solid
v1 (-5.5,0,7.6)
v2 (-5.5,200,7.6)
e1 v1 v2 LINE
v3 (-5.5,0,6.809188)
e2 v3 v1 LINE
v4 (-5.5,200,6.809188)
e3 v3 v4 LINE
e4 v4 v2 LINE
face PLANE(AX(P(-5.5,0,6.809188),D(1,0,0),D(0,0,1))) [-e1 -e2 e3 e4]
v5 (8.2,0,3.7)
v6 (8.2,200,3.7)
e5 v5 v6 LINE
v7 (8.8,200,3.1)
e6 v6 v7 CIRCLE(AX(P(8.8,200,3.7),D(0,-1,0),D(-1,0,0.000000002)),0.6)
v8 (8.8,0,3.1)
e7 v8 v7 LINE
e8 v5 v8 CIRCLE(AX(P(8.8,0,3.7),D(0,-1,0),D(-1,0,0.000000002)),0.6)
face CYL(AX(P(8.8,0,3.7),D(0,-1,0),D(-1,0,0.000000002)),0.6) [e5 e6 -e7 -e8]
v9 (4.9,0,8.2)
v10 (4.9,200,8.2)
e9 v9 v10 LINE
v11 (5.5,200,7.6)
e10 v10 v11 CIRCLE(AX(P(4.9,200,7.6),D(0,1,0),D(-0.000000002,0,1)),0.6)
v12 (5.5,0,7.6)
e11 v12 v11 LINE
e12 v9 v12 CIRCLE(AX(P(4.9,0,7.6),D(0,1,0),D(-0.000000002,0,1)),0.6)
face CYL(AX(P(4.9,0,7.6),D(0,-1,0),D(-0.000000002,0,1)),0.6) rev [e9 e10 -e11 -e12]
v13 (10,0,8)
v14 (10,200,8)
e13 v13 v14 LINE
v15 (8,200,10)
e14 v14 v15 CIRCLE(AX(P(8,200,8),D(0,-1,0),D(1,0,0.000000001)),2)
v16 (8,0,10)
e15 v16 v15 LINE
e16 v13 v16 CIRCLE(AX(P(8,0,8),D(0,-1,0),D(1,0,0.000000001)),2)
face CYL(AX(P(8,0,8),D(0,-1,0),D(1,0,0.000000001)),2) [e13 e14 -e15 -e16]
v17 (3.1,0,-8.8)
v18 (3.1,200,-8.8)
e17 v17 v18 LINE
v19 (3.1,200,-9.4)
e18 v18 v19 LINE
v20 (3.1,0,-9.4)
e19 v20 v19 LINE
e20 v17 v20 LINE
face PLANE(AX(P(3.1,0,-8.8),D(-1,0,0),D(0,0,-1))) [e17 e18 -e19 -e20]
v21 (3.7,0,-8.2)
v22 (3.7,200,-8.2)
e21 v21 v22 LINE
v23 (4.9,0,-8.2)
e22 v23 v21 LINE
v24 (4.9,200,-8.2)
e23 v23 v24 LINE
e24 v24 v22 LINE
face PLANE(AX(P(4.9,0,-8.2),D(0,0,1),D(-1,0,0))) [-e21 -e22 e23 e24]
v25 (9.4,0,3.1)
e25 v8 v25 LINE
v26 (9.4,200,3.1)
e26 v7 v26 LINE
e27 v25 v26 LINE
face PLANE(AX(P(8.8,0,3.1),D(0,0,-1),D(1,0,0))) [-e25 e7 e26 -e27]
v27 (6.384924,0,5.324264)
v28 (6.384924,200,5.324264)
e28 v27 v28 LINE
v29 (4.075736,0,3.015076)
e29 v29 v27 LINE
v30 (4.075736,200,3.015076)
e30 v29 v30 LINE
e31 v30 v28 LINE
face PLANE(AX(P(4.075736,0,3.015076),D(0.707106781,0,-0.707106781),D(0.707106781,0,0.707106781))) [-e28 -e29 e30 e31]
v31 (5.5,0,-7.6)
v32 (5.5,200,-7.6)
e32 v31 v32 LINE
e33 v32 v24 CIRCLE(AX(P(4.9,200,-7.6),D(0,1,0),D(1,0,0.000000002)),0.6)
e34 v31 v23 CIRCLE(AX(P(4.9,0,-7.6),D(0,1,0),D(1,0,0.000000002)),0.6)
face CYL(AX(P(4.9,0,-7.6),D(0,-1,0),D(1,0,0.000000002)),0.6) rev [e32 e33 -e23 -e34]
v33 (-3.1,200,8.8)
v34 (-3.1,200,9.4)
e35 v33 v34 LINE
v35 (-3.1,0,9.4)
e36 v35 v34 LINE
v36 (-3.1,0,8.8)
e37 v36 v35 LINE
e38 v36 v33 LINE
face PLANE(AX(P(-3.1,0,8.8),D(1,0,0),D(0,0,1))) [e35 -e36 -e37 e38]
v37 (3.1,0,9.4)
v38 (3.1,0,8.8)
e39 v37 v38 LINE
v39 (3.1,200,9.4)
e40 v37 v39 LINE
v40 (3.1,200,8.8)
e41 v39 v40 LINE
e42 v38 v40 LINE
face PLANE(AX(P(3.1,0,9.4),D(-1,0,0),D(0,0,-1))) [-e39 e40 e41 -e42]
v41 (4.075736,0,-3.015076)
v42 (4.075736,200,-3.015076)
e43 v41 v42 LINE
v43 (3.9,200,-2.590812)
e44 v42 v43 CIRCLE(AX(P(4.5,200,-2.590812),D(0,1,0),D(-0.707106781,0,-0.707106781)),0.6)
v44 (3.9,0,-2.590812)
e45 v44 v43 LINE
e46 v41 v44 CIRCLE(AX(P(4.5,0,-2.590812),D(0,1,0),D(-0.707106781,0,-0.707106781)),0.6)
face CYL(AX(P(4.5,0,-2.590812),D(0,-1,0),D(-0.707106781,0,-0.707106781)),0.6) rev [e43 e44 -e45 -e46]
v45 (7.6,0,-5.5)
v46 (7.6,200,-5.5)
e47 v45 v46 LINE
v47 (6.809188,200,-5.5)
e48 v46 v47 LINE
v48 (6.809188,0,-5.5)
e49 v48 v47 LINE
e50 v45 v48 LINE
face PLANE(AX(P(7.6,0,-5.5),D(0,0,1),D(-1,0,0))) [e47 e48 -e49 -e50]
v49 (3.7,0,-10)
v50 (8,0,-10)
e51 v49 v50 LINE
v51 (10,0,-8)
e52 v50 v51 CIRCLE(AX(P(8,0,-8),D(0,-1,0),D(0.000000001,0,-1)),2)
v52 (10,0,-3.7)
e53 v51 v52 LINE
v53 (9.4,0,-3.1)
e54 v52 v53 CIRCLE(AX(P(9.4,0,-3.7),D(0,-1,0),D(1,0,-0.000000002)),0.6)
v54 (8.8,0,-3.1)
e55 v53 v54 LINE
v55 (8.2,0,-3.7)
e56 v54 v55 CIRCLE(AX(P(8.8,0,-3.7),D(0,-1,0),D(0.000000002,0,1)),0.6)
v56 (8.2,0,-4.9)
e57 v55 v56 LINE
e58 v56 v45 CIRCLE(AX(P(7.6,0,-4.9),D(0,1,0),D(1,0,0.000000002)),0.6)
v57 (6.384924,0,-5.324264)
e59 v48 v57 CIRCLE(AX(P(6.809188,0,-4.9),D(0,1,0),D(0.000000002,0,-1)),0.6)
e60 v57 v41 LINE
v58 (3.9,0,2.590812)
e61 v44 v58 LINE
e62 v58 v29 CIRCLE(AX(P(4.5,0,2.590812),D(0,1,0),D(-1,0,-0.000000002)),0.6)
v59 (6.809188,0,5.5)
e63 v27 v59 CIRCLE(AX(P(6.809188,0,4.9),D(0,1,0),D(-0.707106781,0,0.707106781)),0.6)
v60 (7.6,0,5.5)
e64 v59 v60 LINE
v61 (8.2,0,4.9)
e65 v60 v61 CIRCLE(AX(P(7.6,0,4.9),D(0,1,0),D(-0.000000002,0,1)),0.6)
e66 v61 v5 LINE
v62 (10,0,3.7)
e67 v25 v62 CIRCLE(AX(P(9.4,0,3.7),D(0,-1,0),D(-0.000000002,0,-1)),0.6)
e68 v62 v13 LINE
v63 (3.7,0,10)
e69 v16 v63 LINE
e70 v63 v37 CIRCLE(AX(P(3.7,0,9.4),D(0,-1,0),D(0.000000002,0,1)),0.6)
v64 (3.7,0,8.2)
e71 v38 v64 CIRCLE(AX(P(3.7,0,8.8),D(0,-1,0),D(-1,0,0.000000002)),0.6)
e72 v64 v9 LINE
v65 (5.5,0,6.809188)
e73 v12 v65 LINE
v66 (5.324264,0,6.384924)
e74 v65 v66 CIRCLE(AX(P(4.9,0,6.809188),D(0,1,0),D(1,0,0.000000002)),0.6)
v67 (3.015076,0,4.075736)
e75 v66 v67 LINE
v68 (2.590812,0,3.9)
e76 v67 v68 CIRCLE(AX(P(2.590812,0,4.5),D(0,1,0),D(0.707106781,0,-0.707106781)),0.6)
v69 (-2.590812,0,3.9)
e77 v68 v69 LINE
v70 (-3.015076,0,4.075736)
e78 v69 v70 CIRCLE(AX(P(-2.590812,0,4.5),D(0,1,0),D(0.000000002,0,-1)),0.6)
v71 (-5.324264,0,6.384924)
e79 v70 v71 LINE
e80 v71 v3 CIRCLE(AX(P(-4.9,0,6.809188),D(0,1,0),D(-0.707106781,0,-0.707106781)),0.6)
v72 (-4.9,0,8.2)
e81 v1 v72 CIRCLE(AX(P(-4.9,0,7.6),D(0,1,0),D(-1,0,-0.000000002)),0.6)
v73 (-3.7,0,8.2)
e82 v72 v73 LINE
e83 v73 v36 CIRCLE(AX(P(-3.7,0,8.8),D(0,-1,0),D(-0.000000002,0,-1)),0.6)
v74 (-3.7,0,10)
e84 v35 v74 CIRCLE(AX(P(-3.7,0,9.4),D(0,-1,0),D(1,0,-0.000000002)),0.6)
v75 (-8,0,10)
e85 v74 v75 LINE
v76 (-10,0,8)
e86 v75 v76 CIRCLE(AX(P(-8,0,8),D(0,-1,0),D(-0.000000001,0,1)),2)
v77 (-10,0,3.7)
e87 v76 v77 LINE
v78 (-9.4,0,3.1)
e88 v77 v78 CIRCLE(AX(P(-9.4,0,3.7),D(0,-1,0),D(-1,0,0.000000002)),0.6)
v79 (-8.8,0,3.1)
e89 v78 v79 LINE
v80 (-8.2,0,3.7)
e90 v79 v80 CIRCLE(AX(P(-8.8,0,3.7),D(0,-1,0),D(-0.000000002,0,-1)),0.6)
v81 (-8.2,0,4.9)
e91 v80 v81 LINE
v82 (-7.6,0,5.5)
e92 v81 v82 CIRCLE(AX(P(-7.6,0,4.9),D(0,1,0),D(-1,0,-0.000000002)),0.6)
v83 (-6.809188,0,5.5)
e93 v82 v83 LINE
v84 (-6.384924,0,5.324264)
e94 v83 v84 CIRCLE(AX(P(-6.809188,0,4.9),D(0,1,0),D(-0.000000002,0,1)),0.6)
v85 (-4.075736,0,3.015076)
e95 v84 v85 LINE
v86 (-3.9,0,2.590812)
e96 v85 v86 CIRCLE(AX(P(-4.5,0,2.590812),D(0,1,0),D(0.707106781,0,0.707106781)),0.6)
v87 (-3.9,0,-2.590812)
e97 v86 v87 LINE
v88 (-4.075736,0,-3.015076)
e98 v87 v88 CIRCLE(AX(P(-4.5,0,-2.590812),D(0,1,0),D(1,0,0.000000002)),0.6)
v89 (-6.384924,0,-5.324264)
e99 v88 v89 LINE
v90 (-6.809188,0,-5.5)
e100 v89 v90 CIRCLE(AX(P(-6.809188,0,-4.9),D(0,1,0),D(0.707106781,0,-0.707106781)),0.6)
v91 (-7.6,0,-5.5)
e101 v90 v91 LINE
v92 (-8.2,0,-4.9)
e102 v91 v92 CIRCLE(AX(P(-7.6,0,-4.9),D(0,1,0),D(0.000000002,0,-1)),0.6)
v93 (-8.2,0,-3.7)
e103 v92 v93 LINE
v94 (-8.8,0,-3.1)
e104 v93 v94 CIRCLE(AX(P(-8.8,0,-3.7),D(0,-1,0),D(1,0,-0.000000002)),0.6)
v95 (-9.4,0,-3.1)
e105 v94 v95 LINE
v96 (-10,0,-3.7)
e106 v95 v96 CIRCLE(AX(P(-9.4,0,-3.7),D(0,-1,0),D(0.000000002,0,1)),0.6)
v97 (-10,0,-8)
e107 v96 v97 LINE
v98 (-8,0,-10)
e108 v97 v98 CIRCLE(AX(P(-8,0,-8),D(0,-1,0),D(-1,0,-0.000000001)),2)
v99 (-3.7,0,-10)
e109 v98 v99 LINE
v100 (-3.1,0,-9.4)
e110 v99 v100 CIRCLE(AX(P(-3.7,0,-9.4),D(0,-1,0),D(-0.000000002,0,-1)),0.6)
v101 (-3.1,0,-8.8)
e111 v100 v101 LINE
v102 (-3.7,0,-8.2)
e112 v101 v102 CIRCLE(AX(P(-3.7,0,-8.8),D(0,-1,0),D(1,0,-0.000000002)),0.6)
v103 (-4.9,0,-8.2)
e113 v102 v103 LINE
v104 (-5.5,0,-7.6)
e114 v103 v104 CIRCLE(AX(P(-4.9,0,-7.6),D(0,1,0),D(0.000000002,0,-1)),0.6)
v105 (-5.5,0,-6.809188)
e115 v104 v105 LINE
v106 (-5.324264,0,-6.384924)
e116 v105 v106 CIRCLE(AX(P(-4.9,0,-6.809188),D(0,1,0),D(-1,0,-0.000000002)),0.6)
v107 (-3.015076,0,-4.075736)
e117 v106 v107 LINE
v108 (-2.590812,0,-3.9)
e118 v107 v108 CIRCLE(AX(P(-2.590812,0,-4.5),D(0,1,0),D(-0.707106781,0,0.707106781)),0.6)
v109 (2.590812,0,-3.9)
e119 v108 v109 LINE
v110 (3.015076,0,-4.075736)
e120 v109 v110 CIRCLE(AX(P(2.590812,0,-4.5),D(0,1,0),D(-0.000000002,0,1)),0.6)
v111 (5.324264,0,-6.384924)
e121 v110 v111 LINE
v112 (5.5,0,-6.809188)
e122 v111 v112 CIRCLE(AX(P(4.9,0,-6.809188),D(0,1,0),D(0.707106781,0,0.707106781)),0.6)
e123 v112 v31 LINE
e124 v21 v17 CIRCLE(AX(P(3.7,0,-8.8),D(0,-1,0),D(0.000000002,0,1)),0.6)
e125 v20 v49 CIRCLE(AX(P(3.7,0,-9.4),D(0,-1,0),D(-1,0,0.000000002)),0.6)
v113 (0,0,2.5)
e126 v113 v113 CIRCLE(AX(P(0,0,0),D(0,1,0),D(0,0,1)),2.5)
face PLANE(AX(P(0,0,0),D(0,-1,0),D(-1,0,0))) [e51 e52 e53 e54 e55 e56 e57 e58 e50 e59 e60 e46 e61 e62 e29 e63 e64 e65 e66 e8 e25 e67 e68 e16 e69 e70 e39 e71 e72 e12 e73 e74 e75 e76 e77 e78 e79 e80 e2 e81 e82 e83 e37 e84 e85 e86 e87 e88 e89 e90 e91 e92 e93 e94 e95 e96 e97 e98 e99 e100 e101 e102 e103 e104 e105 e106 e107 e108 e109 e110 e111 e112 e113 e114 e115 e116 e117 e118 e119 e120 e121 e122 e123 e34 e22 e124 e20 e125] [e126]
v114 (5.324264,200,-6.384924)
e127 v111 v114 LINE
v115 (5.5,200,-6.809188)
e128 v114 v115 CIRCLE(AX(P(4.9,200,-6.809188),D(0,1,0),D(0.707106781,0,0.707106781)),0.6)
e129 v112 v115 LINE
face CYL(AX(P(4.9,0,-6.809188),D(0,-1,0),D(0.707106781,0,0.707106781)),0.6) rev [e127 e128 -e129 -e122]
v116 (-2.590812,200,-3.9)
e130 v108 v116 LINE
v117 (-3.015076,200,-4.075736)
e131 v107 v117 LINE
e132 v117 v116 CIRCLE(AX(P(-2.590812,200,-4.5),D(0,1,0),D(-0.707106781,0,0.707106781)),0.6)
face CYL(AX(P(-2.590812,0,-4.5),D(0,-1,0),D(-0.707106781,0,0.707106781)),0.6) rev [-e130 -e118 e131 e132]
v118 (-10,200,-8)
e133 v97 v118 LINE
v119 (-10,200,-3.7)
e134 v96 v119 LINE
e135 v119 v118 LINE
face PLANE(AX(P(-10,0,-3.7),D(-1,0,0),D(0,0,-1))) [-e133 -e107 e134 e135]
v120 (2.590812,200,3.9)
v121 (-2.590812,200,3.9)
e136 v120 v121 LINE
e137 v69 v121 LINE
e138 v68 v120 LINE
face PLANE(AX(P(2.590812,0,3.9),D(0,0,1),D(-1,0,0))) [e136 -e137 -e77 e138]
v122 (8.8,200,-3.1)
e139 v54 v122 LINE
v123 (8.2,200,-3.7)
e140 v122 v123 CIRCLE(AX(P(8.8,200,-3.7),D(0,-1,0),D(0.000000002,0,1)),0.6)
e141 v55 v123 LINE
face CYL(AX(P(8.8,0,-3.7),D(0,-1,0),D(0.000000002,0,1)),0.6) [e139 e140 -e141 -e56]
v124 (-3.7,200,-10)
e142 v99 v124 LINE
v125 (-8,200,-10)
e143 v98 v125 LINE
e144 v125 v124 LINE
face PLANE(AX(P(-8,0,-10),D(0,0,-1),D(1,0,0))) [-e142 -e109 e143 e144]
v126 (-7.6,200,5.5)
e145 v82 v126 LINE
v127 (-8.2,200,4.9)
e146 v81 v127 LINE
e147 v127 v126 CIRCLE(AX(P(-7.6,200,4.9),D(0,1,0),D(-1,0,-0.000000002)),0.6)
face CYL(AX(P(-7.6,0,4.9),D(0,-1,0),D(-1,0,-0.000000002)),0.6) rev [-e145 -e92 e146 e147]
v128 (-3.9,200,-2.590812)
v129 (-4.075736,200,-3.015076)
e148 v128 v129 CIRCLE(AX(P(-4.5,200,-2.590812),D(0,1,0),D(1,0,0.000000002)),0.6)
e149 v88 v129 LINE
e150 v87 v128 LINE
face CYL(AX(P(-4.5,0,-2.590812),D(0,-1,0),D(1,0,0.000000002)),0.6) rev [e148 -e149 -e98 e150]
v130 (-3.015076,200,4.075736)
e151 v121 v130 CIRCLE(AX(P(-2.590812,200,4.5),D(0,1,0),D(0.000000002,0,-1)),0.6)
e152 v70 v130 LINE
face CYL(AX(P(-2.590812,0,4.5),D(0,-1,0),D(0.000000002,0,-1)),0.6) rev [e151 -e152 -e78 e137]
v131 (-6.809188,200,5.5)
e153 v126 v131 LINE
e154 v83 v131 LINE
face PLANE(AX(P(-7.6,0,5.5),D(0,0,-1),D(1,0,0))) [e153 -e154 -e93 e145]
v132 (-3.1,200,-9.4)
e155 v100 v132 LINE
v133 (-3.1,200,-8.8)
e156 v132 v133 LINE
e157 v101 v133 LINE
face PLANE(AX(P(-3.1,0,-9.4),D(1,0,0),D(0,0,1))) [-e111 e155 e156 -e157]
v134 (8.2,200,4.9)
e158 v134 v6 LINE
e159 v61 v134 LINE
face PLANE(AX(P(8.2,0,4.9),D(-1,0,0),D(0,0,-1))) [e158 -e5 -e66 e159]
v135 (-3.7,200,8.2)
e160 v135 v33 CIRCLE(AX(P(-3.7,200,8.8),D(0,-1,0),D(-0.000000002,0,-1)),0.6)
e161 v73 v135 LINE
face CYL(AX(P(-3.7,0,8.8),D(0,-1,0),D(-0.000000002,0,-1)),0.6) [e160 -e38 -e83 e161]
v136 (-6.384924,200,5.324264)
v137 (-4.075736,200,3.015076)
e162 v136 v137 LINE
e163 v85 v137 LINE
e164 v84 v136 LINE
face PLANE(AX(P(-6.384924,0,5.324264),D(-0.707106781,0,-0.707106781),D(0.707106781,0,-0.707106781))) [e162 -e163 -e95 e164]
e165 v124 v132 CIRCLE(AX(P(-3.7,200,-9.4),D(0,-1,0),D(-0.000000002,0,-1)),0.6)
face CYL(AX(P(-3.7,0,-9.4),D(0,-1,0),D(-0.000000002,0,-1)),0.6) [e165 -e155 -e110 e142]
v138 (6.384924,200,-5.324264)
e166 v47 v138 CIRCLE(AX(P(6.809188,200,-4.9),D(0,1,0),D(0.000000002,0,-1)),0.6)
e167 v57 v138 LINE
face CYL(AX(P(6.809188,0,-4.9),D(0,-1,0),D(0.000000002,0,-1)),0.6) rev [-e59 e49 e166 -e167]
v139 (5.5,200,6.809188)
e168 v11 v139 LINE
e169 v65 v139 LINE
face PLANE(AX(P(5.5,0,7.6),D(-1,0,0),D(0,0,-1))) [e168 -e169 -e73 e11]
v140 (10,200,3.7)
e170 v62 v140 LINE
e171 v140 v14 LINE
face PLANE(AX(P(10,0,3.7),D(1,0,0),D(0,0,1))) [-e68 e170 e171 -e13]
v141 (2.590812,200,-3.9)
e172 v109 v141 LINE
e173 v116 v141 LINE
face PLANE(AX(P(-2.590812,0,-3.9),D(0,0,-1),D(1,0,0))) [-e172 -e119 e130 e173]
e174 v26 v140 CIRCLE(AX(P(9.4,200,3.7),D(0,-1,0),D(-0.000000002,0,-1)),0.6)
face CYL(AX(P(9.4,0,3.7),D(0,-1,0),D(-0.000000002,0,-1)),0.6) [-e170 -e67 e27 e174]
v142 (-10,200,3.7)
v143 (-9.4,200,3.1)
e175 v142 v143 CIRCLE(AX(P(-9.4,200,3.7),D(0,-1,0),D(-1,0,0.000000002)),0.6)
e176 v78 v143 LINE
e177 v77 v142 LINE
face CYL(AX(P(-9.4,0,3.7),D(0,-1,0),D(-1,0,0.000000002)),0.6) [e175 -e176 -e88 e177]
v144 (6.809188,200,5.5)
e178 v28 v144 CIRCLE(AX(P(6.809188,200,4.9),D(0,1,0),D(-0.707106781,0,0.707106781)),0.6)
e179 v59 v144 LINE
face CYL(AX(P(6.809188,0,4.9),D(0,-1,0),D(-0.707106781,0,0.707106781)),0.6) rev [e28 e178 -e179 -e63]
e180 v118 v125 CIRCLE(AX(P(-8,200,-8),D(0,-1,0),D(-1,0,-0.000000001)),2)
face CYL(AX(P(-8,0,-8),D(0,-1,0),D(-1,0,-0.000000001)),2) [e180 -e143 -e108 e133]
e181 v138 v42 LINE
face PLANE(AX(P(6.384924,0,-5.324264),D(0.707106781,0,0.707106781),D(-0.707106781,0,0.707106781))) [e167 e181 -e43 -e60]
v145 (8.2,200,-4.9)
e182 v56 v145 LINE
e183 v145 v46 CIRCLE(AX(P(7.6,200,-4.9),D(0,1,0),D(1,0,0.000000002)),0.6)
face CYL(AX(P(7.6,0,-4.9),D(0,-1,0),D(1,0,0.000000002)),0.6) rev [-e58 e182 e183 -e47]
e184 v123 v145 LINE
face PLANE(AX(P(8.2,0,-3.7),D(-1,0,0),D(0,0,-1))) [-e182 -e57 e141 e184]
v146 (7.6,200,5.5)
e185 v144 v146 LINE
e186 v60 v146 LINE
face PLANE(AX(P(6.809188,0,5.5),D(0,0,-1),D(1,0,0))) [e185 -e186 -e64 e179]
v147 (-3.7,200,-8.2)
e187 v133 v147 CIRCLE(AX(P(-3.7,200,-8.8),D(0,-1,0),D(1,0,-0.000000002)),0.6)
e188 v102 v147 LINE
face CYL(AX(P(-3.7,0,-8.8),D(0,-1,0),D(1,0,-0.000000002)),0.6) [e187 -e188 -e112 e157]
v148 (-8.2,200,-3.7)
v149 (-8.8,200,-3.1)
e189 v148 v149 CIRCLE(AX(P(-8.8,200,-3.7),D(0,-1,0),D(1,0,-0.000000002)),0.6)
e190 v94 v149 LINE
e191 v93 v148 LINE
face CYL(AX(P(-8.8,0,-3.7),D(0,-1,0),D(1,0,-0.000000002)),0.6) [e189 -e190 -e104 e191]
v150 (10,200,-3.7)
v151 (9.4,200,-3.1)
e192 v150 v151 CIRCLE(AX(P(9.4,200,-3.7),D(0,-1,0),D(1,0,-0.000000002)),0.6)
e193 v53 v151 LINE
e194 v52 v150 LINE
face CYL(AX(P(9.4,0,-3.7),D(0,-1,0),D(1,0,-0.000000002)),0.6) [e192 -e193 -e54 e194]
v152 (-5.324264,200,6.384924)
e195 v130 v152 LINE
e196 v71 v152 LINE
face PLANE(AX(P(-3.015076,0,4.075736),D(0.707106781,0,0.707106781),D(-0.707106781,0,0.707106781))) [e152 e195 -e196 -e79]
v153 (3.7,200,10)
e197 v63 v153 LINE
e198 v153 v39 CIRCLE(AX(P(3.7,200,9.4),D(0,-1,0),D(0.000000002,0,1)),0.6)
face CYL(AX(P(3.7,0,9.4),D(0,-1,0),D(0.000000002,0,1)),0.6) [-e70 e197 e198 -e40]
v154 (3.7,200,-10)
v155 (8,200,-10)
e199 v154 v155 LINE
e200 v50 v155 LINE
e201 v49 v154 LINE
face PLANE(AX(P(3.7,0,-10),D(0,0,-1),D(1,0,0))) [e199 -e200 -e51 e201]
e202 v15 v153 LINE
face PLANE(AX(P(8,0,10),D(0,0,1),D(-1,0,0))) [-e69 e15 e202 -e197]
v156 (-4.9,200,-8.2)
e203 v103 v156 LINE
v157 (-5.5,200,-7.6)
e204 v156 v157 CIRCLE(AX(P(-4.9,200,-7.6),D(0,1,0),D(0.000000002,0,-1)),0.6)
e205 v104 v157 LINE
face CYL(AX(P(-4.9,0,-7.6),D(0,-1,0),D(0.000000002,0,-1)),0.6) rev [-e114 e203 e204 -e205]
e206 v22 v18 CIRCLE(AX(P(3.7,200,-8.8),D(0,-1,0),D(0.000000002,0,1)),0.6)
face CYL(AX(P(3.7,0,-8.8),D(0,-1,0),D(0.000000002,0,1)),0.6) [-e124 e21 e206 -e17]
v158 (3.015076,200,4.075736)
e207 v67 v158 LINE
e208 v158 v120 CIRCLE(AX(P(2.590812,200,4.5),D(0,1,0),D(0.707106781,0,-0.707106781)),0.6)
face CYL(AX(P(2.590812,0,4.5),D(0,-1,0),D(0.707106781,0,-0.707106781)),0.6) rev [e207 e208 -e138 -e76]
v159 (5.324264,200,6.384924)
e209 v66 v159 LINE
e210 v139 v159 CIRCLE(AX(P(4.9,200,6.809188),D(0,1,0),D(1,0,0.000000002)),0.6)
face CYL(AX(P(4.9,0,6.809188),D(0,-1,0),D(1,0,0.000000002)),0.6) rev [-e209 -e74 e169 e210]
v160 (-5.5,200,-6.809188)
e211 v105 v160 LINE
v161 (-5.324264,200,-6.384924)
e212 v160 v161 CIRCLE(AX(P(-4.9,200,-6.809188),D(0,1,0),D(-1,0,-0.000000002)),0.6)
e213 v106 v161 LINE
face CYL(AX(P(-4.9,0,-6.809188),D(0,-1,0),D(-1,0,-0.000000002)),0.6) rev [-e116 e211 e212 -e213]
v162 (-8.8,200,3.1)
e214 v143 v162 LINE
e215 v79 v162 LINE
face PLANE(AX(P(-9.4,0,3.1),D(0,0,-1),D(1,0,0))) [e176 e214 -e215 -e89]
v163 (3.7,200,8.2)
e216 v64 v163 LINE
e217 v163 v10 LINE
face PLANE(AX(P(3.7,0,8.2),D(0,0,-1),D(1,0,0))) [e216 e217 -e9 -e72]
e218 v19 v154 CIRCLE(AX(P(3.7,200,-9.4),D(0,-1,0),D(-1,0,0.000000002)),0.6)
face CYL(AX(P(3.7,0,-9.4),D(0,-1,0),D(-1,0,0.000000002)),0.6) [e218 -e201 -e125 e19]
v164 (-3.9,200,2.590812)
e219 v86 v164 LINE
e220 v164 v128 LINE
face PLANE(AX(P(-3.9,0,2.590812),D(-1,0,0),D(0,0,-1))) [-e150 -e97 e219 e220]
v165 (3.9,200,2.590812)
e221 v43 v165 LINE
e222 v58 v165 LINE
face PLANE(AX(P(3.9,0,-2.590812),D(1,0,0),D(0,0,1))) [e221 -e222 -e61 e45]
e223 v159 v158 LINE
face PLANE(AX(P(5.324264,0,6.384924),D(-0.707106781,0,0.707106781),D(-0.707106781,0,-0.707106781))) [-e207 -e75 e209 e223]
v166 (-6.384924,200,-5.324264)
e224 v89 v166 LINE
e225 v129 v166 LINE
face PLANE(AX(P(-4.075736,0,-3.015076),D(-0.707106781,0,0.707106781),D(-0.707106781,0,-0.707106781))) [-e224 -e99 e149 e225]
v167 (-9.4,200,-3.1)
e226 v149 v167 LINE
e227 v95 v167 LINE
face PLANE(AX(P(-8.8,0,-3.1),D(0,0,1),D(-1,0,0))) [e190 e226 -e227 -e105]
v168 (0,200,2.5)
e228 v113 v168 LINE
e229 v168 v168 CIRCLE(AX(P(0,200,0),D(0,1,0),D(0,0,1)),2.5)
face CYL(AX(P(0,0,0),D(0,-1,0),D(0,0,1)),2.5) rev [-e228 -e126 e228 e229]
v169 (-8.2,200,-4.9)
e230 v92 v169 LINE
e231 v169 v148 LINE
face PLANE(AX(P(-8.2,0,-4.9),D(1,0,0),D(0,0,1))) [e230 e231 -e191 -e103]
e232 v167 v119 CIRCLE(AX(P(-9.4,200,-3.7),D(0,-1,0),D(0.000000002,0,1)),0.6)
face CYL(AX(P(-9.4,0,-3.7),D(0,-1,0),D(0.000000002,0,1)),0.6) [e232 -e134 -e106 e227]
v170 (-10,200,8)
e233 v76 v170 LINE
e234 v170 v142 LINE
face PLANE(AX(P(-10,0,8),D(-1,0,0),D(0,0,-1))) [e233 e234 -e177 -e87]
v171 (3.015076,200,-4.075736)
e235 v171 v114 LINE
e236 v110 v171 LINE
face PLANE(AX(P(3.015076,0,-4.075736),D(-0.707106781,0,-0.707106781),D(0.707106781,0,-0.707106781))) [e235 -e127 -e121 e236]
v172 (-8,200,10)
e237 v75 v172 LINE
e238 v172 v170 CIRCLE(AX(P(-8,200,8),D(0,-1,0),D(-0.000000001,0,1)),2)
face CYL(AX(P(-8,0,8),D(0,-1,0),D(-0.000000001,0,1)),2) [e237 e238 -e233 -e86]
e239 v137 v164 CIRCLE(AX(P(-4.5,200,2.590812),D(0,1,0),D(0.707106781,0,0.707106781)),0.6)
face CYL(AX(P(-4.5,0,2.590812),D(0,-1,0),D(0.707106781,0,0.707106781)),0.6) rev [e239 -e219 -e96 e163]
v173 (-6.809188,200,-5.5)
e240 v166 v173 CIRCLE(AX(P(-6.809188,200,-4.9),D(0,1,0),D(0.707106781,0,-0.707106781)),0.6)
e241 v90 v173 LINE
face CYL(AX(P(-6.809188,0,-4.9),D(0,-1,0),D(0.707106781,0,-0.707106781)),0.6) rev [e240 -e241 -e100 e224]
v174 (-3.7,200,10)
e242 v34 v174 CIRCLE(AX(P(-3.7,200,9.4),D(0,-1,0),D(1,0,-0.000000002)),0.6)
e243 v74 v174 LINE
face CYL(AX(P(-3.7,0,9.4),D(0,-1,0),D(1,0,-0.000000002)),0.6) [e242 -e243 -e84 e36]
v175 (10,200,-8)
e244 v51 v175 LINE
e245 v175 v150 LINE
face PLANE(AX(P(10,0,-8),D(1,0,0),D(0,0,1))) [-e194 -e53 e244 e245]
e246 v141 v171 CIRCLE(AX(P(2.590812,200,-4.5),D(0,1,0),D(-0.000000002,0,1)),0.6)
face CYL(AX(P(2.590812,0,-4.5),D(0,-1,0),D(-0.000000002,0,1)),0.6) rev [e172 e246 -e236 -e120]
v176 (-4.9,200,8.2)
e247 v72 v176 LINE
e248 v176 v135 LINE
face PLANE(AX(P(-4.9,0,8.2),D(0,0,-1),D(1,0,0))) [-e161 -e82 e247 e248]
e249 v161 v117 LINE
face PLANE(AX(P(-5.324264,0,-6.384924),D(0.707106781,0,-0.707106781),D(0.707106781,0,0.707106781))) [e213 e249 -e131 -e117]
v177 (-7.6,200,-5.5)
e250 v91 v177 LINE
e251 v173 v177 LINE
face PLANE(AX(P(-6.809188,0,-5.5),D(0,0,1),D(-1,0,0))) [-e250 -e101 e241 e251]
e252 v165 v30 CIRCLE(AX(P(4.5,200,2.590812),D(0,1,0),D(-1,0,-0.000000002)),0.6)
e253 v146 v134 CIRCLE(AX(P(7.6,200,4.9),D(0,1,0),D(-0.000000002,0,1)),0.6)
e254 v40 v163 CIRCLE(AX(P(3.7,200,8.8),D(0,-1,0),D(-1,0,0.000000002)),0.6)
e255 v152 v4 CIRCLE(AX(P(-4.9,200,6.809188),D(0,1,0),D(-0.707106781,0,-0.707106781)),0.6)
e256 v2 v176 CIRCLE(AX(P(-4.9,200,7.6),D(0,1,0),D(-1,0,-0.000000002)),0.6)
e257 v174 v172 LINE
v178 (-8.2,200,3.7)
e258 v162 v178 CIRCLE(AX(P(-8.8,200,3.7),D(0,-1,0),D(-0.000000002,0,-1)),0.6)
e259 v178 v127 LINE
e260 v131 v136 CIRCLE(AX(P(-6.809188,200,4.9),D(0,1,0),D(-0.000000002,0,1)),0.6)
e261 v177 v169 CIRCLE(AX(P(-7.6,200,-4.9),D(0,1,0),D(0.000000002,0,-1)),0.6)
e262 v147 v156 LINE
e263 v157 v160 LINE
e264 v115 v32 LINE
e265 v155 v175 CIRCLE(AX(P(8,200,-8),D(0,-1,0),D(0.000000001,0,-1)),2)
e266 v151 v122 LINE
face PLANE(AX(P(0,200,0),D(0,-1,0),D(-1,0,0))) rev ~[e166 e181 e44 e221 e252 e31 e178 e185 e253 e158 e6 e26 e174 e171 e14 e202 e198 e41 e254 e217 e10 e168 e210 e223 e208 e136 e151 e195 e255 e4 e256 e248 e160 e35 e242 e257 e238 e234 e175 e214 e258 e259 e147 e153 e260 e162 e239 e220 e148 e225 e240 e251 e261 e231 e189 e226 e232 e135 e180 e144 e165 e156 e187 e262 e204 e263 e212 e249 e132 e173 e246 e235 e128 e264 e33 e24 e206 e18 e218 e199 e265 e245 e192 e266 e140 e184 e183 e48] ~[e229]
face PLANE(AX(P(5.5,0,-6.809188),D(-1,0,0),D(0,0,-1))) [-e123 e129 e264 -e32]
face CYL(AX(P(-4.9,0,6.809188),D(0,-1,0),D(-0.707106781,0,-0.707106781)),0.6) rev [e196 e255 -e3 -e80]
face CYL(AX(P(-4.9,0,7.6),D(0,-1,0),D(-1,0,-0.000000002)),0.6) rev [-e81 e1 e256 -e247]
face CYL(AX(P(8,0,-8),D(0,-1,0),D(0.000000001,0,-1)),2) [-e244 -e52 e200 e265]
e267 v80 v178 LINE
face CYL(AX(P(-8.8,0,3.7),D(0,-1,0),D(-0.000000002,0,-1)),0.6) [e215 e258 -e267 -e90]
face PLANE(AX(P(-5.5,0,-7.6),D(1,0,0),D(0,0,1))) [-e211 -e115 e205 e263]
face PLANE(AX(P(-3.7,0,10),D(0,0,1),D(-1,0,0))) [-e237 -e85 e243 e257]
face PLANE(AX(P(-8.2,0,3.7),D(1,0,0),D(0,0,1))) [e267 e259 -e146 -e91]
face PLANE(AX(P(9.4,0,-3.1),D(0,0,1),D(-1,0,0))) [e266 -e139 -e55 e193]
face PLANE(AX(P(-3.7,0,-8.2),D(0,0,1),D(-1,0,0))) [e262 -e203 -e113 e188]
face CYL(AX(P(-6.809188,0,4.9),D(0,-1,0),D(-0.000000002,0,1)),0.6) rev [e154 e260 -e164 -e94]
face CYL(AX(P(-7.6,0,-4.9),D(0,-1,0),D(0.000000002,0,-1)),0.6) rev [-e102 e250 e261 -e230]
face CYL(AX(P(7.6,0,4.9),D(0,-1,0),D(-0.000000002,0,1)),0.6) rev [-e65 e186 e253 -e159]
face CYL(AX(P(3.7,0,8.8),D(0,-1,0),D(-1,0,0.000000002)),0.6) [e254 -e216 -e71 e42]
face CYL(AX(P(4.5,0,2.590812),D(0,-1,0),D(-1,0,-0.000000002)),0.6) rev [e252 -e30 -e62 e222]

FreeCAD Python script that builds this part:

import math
import FreeCAD as App
import Part
import Sketcher

doc = App.newDocument("Part")
params = doc.addObject("Spreadsheet::Sheet", "Params")
for row, (alias, value) in enumerate([
    ("sketch1_diameter", "5 mm"),
    ("sketch1_radius", "2 mm"),
    ("sketch1_radius2", "0.6 mm"),
    ("sketch1_width", "1.2 mm"),
    ("sketch1_width2", "4.3 mm"),
    ("pad1_length", "200 mm"),
], start=1):
    params.set(f"A{row}", alias)
    params.set(f"B{row}", "=" + value)
    params.setAlias(f"B{row}", alias)

body = doc.addObject("PartDesign::Body", "Body")

# Sketch on XZ plane
sketch1 = body.newObject("Sketcher::SketchObject", "Sketch")
sketch1.AttachmentSupport = (doc.getObject("XZ_Plane"), [""])
sketch1.MapMode = "FlatFace"
sketch1.addGeometry(Part.LineSegment(App.Vector(3.1, -9.4, 0), App.Vector(3.1, -8.8, 0)), False)
sketch1.addGeometry(Part.ArcOfCircle(Part.Circle(App.Vector(3.7, -8.8, 0), App.Vector(0, 0, 1), 0.6), math.radians(90), math.radians(180)), False)
sketch1.addGeometry(Part.LineSegment(App.Vector(3.7, -8.2, 0), App.Vector(4.9, -8.2, 0)), False)
sketch1.addGeometry(Part.ArcOfCircle(Part.Circle(App.Vector(4.9, -7.6, 0), App.Vector(0, 0, 1), 0.6), math.radians(-90), math.radians(0)), False)
sketch1.addGeometry(Part.LineSegment(App.Vector(5.5, -7.6, 0), App.Vector(5.5, -6.81, 0)), False)
sketch1.addGeometry(Part.ArcOfCircle(Part.Circle(App.Vector(4.9, -6.81, 0), App.Vector(0, 0, 1), 0.6), math.radians(0), math.radians(45)), False)
sketch1.addGeometry(Part.LineSegment(App.Vector(5.32, -6.38, 0), App.Vector(3.02, -4.08, 0)), False)
sketch1.addGeometry(Part.ArcOfCircle(Part.Circle(App.Vector(2.59, -4.5, 0), App.Vector(0, 0, 1), 0.6), math.radians(45), math.radians(90)), False)
sketch1.addGeometry(Part.LineSegment(App.Vector(2.59, -3.9, 0), App.Vector(-2.59, -3.9, 0)), False)
sketch1.addGeometry(Part.ArcOfCircle(Part.Circle(App.Vector(-2.59, -4.5, 0), App.Vector(0, 0, 1), 0.6), math.radians(90), math.radians(135)), False)
sketch1.addGeometry(Part.LineSegment(App.Vector(-3.02, -4.08, 0), App.Vector(-5.32, -6.38, 0)), False)
sketch1.addGeometry(Part.ArcOfCircle(Part.Circle(App.Vector(-4.9, -6.81, 0), App.Vector(0, 0, 1), 0.6), math.radians(135), math.radians(180)), False)
sketch1.addGeometry(Part.LineSegment(App.Vector(-5.5, -6.81, 0), App.Vector(-5.5, -7.6, 0)), False)
sketch1.addGeometry(Part.ArcOfCircle(Part.Circle(App.Vector(-4.9, -7.6, 0), App.Vector(0, 0, 1), 0.6), math.radians(180), math.radians(270)), False)
sketch1.addGeometry(Part.LineSegment(App.Vector(-4.9, -8.2, 0), App.Vector(-3.7, -8.2, 0)), False)
sketch1.addGeometry(Part.ArcOfCircle(Part.Circle(App.Vector(-3.7, -8.8, 0), App.Vector(0, 0, 1), 0.6), math.radians(0), math.radians(90)), False)
sketch1.addGeometry(Part.LineSegment(App.Vector(-3.1, -8.8, 0), App.Vector(-3.1, -9.4, 0)), False)
sketch1.addGeometry(Part.ArcOfCircle(Part.Circle(App.Vector(-3.7, -9.4, 0), App.Vector(0, 0, 1), 0.6), math.radians(-90), math.radians(0)), False)
sketch1.addGeometry(Part.LineSegment(App.Vector(-3.7, -10, 0), App.Vector(-8, -10, 0)), False)
sketch1.addGeometry(Part.ArcOfCircle(Part.Circle(App.Vector(-8, -8, 0), App.Vector(0, 0, 1), 2), math.radians(-180), math.radians(-90)), False)
sketch1.addGeometry(Part.LineSegment(App.Vector(-10, -8, 0), App.Vector(-10, -3.7, 0)), False)
sketch1.addGeometry(Part.ArcOfCircle(Part.Circle(App.Vector(-9.4, -3.7, 0), App.Vector(0, 0, 1), 0.6), math.radians(90), math.radians(180)), False)
sketch1.addGeometry(Part.LineSegment(App.Vector(-9.4, -3.1, 0), App.Vector(-8.8, -3.1, 0)), False)
sketch1.addGeometry(Part.ArcOfCircle(Part.Circle(App.Vector(-8.8, -3.7, 0), App.Vector(0, 0, 1), 0.6), math.radians(0), math.radians(90)), False)
sketch1.addGeometry(Part.LineSegment(App.Vector(-8.2, -3.7, 0), App.Vector(-8.2, -4.9, 0)), False)
sketch1.addGeometry(Part.ArcOfCircle(Part.Circle(App.Vector(-7.6, -4.9, 0), App.Vector(0, 0, 1), 0.6), math.radians(180), math.radians(270)), False)
sketch1.addGeometry(Part.LineSegment(App.Vector(-7.6, -5.5, 0), App.Vector(-6.81, -5.5, 0)), False)
sketch1.addGeometry(Part.ArcOfCircle(Part.Circle(App.Vector(-6.81, -4.9, 0), App.Vector(0, 0, 1), 0.6), math.radians(-90), math.radians(-45)), False)
sketch1.addGeometry(Part.LineSegment(App.Vector(-6.38, -5.32, 0), App.Vector(-4.08, -3.02, 0)), False)
sketch1.addGeometry(Part.ArcOfCircle(Part.Circle(App.Vector(-4.5, -2.59, 0), App.Vector(0, 0, 1), 0.6), math.radians(-45), math.radians(0)), False)
sketch1.addGeometry(Part.LineSegment(App.Vector(-3.9, -2.59, 0), App.Vector(-3.9, 2.59, 0)), False)
sketch1.addGeometry(Part.ArcOfCircle(Part.Circle(App.Vector(-4.5, 2.59, 0), App.Vector(0, 0, 1), 0.6), math.radians(0), math.radians(45)), False)
sketch1.addGeometry(Part.LineSegment(App.Vector(-4.08, 3.02, 0), App.Vector(-6.38, 5.32, 0)), False)
sketch1.addGeometry(Part.ArcOfCircle(Part.Circle(App.Vector(-6.81, 4.9, 0), App.Vector(0, 0, 1), 0.6), math.radians(45), math.radians(90)), False)
sketch1.addGeometry(Part.LineSegment(App.Vector(-6.81, 5.5, 0), App.Vector(-7.6, 5.5, 0)), False)
sketch1.addGeometry(Part.ArcOfCircle(Part.Circle(App.Vector(-7.6, 4.9, 0), App.Vector(0, 0, 1), 0.6), math.radians(90), math.radians(180)), False)
sketch1.addGeometry(Part.LineSegment(App.Vector(-8.2, 4.9, 0), App.Vector(-8.2, 3.7, 0)), False)
sketch1.addGeometry(Part.ArcOfCircle(Part.Circle(App.Vector(-8.8, 3.7, 0), App.Vector(0, 0, 1), 0.6), math.radians(-90), math.radians(0)), False)
sketch1.addGeometry(Part.LineSegment(App.Vector(-8.8, 3.1, 0), App.Vector(-9.4, 3.1, 0)), False)
sketch1.addGeometry(Part.ArcOfCircle(Part.Circle(App.Vector(-9.4, 3.7, 0), App.Vector(0, 0, 1), 0.6), math.radians(180), math.radians(270)), False)
sketch1.addGeometry(Part.LineSegment(App.Vector(-10, 3.7, 0), App.Vector(-10, 8, 0)), False)
sketch1.addGeometry(Part.ArcOfCircle(Part.Circle(App.Vector(-8, 8, 0), App.Vector(0, 0, 1), 2), math.radians(90), math.radians(180)), False)
sketch1.addGeometry(Part.LineSegment(App.Vector(-8, 10, 0), App.Vector(-3.7, 10, 0)), False)
sketch1.addGeometry(Part.ArcOfCircle(Part.Circle(App.Vector(-3.7, 9.4, 0), App.Vector(0, 0, 1), 0.6), math.radians(0), math.radians(90)), False)
sketch1.addGeometry(Part.LineSegment(App.Vector(-3.1, 9.4, 0), App.Vector(-3.1, 8.8, 0)), False)
sketch1.addGeometry(Part.ArcOfCircle(Part.Circle(App.Vector(-3.7, 8.8, 0), App.Vector(0, 0, 1), 0.6), math.radians(-90), math.radians(0)), False)
sketch1.addGeometry(Part.LineSegment(App.Vector(-3.7, 8.2, 0), App.Vector(-4.9, 8.2, 0)), False)
sketch1.addGeometry(Part.ArcOfCircle(Part.Circle(App.Vector(-4.9, 7.6, 0), App.Vector(0, 0, 1), 0.6), math.radians(90), math.radians(180)), False)
sketch1.addGeometry(Part.LineSegment(App.Vector(-5.5, 7.6, 0), App.Vector(-5.5, 6.81, 0)), False)
sketch1.addGeometry(Part.ArcOfCircle(Part.Circle(App.Vector(-4.9, 6.81, 0), App.Vector(0, 0, 1), 0.6), math.radians(180), math.radians(225)), False)
sketch1.addGeometry(Part.LineSegment(App.Vector(-5.32, 6.38, 0), App.Vector(-3.02, 4.08, 0)), False)
sketch1.addGeometry(Part.ArcOfCircle(Part.Circle(App.Vector(-2.59, 4.5, 0), App.Vector(0, 0, 1), 0.6), math.radians(-135), math.radians(-90)), False)
sketch1.addGeometry(Part.LineSegment(App.Vector(-2.59, 3.9, 0), App.Vector(2.59, 3.9, 0)), False)
sketch1.addGeometry(Part.ArcOfCircle(Part.Circle(App.Vector(2.59, 4.5, 0), App.Vector(0, 0, 1), 0.6), math.radians(-90), math.radians(-45)), False)
sketch1.addGeometry(Part.LineSegment(App.Vector(3.02, 4.08, 0), App.Vector(5.32, 6.38, 0)), False)
sketch1.addGeometry(Part.ArcOfCircle(Part.Circle(App.Vector(4.9, 6.81, 0), App.Vector(0, 0, 1), 0.6), math.radians(-45), math.radians(0)), False)
sketch1.addGeometry(Part.LineSegment(App.Vector(5.5, 6.81, 0), App.Vector(5.5, 7.6, 0)), False)
sketch1.addGeometry(Part.ArcOfCircle(Part.Circle(App.Vector(4.9, 7.6, 0), App.Vector(0, 0, 1), 0.6), math.radians(0), math.radians(90)), False)
sketch1.addGeometry(Part.LineSegment(App.Vector(4.9, 8.2, 0), App.Vector(3.7, 8.2, 0)), False)
sketch1.addGeometry(Part.ArcOfCircle(Part.Circle(App.Vector(3.7, 8.8, 0), App.Vector(0, 0, 1), 0.6), math.radians(180), math.radians(270)), False)
sketch1.addGeometry(Part.LineSegment(App.Vector(3.1, 8.8, 0), App.Vector(3.1, 9.4, 0)), False)
sketch1.addGeometry(Part.ArcOfCircle(Part.Circle(App.Vector(3.7, 9.4, 0), App.Vector(0, 0, 1), 0.6), math.radians(90), math.radians(180)), False)
sketch1.addGeometry(Part.LineSegment(App.Vector(3.7, 10, 0), App.Vector(8, 10, 0)), False)
sketch1.addGeometry(Part.ArcOfCircle(Part.Circle(App.Vector(8, 8, 0), App.Vector(0, 0, 1), 2), math.radians(0), math.radians(90)), False)
sketch1.addGeometry(Part.LineSegment(App.Vector(10, 8, 0), App.Vector(10, 3.7, 0)), False)
sketch1.addGeometry(Part.ArcOfCircle(Part.Circle(App.Vector(9.4, 3.7, 0), App.Vector(0, 0, 1), 0.6), math.radians(-90), math.radians(0)), False)
sketch1.addGeometry(Part.LineSegment(App.Vector(9.4, 3.1, 0), App.Vector(8.8, 3.1, 0)), False)
sketch1.addGeometry(Part.ArcOfCircle(Part.Circle(App.Vector(8.8, 3.7, 0), App.Vector(0, 0, 1), 0.6), math.radians(180), math.radians(270)), False)
sketch1.addGeometry(Part.LineSegment(App.Vector(8.2, 3.7, 0), App.Vector(8.2, 4.9, 0)), False)
sketch1.addGeometry(Part.ArcOfCircle(Part.Circle(App.Vector(7.6, 4.9, 0), App.Vector(0, 0, 1), 0.6), math.radians(0), math.radians(90)), False)
sketch1.addGeometry(Part.LineSegment(App.Vector(7.6, 5.5, 0), App.Vector(6.81, 5.5, 0)), False)
sketch1.addGeometry(Part.ArcOfCircle(Part.Circle(App.Vector(6.81, 4.9, 0), App.Vector(0, 0, 1), 0.6), math.radians(90), math.radians(135)), False)
sketch1.addGeometry(Part.LineSegment(App.Vector(6.38, 5.32, 0), App.Vector(4.08, 3.02, 0)), False)
sketch1.addGeometry(Part.ArcOfCircle(Part.Circle(App.Vector(4.5, 2.59, 0), App.Vector(0, 0, 1), 0.6), math.radians(135), math.radians(180)), False)
sketch1.addGeometry(Part.LineSegment(App.Vector(3.9, 2.59, 0), App.Vector(3.9, -2.59, 0)), False)
sketch1.addGeometry(Part.ArcOfCircle(Part.Circle(App.Vector(4.5, -2.59, 0), App.Vector(0, 0, 1), 0.6), math.radians(180), math.radians(225)), False)
sketch1.addGeometry(Part.LineSegment(App.Vector(4.08, -3.02, 0), App.Vector(6.38, -5.32, 0)), False)
sketch1.addGeometry(Part.ArcOfCircle(Part.Circle(App.Vector(6.81, -4.9, 0), App.Vector(0, 0, 1), 0.6), math.radians(-135), math.radians(-90)), False)
sketch1.addGeometry(Part.LineSegment(App.Vector(6.81, -5.5, 0), App.Vector(7.6, -5.5, 0)), False)
sketch1.addGeometry(Part.ArcOfCircle(Part.Circle(App.Vector(7.6, -4.9, 0), App.Vector(0, 0, 1), 0.6), math.radians(-90), math.radians(0)), False)
sketch1.addGeometry(Part.LineSegment(App.Vector(8.2, -4.9, 0), App.Vector(8.2, -3.7, 0)), False)
sketch1.addGeometry(Part.ArcOfCircle(Part.Circle(App.Vector(8.8, -3.7, 0), App.Vector(0, 0, 1), 0.6), math.radians(90), math.radians(180)), False)
sketch1.addGeometry(Part.LineSegment(App.Vector(8.8, -3.1, 0), App.Vector(9.4, -3.1, 0)), False)
sketch1.addGeometry(Part.ArcOfCircle(Part.Circle(App.Vector(9.4, -3.7, 0), App.Vector(0, 0, 1), 0.6), math.radians(0), math.radians(90)), False)
sketch1.addGeometry(Part.LineSegment(App.Vector(10, -3.7, 0), App.Vector(10, -8, 0)), False)
sketch1.addGeometry(Part.ArcOfCircle(Part.Circle(App.Vector(8, -8, 0), App.Vector(0, 0, 1), 2), math.radians(-90), math.radians(0)), False)
sketch1.addGeometry(Part.LineSegment(App.Vector(8, -10, 0), App.Vector(3.7, -10, 0)), False)
sketch1.addGeometry(Part.ArcOfCircle(Part.Circle(App.Vector(3.7, -9.4, 0), App.Vector(0, 0, 1), 0.6), math.radians(180), math.radians(270)), False)
sketch1.addGeometry(Part.Circle(App.Vector(0, 0, 0), App.Vector(0, 0, 1), 2.5), False)
sketch1.addConstraint(Sketcher.Constraint("Tangent", 0, 2, 1, 2))
sketch1.addConstraint(Sketcher.Constraint("Tangent", 1, 1, 2, 1))
sketch1.addConstraint(Sketcher.Constraint("Tangent", 2, 2, 3, 1))
sketch1.addConstraint(Sketcher.Constraint("Tangent", 3, 2, 4, 1))
sketch1.addConstraint(Sketcher.Constraint("Tangent", 4, 2, 5, 1))
sketch1.addConstraint(Sketcher.Constraint("Tangent", 5, 2, 6, 1))
sketch1.addConstraint(Sketcher.Constraint("Tangent", 6, 2, 7, 1))
sketch1.addConstraint(Sketcher.Constraint("Tangent", 7, 2, 8, 1))
sketch1.addConstraint(Sketcher.Constraint("Tangent", 8, 2, 9, 1))
sketch1.addConstraint(Sketcher.Constraint("Tangent", 9, 2, 10, 1))
sketch1.addConstraint(Sketcher.Constraint("Tangent", 10, 2, 11, 1))
sketch1.addConstraint(Sketcher.Constraint("Tangent", 11, 2, 12, 1))
sketch1.addConstraint(Sketcher.Constraint("Tangent", 12, 2, 13, 1))
sketch1.addConstraint(Sketcher.Constraint("Tangent", 13, 2, 14, 1))
sketch1.addConstraint(Sketcher.Constraint("Tangent", 14, 2, 15, 2))
sketch1.addConstraint(Sketcher.Constraint("Tangent", 15, 1, 16, 1))
sketch1.addConstraint(Sketcher.Constraint("Tangent", 16, 2, 17, 2))
sketch1.addConstraint(Sketcher.Constraint("Tangent", 17, 1, 18, 1))
sketch1.addConstraint(Sketcher.Constraint("Tangent", 18, 2, 19, 2))
sketch1.addConstraint(Sketcher.Constraint("Tangent", 19, 1, 20, 1))
sketch1.addConstraint(Sketcher.Constraint("Tangent", 20, 2, 21, 2))
sketch1.addConstraint(Sketcher.Constraint("Tangent", 21, 1, 22, 1))
sketch1.addConstraint(Sketcher.Constraint("Tangent", 22, 2, 23, 2))
sketch1.addConstraint(Sketcher.Constraint("Tangent", 23, 1, 24, 1))
sketch1.addConstraint(Sketcher.Constraint("Tangent", 24, 2, 25, 1))
sketch1.addConstraint(Sketcher.Constraint("Tangent", 25, 2, 26, 1))
sketch1.addConstraint(Sketcher.Constraint("Tangent", 26, 2, 27, 1))
sketch1.addConstraint(Sketcher.Constraint("Tangent", 27, 2, 28, 1))
sketch1.addConstraint(Sketcher.Constraint("Tangent", 28, 2, 29, 1))
sketch1.addConstraint(Sketcher.Constraint("Tangent", 29, 2, 30, 1))
sketch1.addConstraint(Sketcher.Constraint("Tangent", 30, 2, 31, 1))
sketch1.addConstraint(Sketcher.Constraint("Tangent", 31, 2, 32, 1))
sketch1.addConstraint(Sketcher.Constraint("Tangent", 32, 2, 33, 1))
sketch1.addConstraint(Sketcher.Constraint("Tangent", 33, 2, 34, 1))
sketch1.addConstraint(Sketcher.Constraint("Tangent", 34, 2, 35, 1))
sketch1.addConstraint(Sketcher.Constraint("Tangent", 35, 2, 36, 1))
sketch1.addConstraint(Sketcher.Constraint("Tangent", 36, 2, 37, 2))
sketch1.addConstraint(Sketcher.Constraint("Tangent", 37, 1, 38, 1))
sketch1.addConstraint(Sketcher.Constraint("Tangent", 38, 2, 39, 2))
sketch1.addConstraint(Sketcher.Constraint("Tangent", 39, 1, 40, 1))
sketch1.addConstraint(Sketcher.Constraint("Tangent", 40, 2, 41, 2))
sketch1.addConstraint(Sketcher.Constraint("Tangent", 41, 1, 42, 1))
sketch1.addConstraint(Sketcher.Constraint("Tangent", 42, 2, 43, 2))
sketch1.addConstraint(Sketcher.Constraint("Tangent", 43, 1, 44, 1))
sketch1.addConstraint(Sketcher.Constraint("Tangent", 44, 2, 45, 2))
sketch1.addConstraint(Sketcher.Constraint("Tangent", 45, 1, 46, 1))
sketch1.addConstraint(Sketcher.Constraint("Tangent", 46, 2, 47, 1))
sketch1.addConstraint(Sketcher.Constraint("Tangent", 47, 2, 48, 1))
sketch1.addConstraint(Sketcher.Constraint("Tangent", 48, 2, 49, 1))
sketch1.addConstraint(Sketcher.Constraint("Tangent", 49, 2, 50, 1))
sketch1.addConstraint(Sketcher.Constraint("Tangent", 50, 2, 51, 1))
sketch1.addConstraint(Sketcher.Constraint("Tangent", 51, 2, 52, 1))
sketch1.addConstraint(Sketcher.Constraint("Tangent", 52, 2, 53, 1))
sketch1.addConstraint(Sketcher.Constraint("Tangent", 53, 2, 54, 1))
sketch1.addConstraint(Sketcher.Constraint("Tangent", 54, 2, 55, 1))
sketch1.addConstraint(Sketcher.Constraint("Tangent", 55, 2, 56, 1))
sketch1.addConstraint(Sketcher.Constraint("Tangent", 56, 2, 57, 1))
sketch1.addConstraint(Sketcher.Constraint("Tangent", 57, 2, 58, 1))
sketch1.addConstraint(Sketcher.Constraint("Tangent", 58, 2, 59, 2))
sketch1.addConstraint(Sketcher.Constraint("Tangent", 59, 1, 60, 1))
sketch1.addConstraint(Sketcher.Constraint("Tangent", 60, 2, 61, 2))
sketch1.addConstraint(Sketcher.Constraint("Tangent", 61, 1, 62, 1))
sketch1.addConstraint(Sketcher.Constraint("Tangent", 62, 2, 63, 2))
sketch1.addConstraint(Sketcher.Constraint("Tangent", 63, 1, 64, 1))
sketch1.addConstraint(Sketcher.Constraint("Tangent", 64, 2, 65, 2))
sketch1.addConstraint(Sketcher.Constraint("Tangent", 65, 1, 66, 1))
sketch1.addConstraint(Sketcher.Constraint("Tangent", 66, 2, 67, 2))
sketch1.addConstraint(Sketcher.Constraint("Tangent", 67, 1, 68, 1))
sketch1.addConstraint(Sketcher.Constraint("Tangent", 68, 2, 69, 1))
sketch1.addConstraint(Sketcher.Constraint("Tangent", 69, 2, 70, 1))
sketch1.addConstraint(Sketcher.Constraint("Tangent", 70, 2, 71, 1))
sketch1.addConstraint(Sketcher.Constraint("Tangent", 71, 2, 72, 1))
sketch1.addConstraint(Sketcher.Constraint("Tangent", 72, 2, 73, 1))
sketch1.addConstraint(Sketcher.Constraint("Tangent", 73, 2, 74, 1))
sketch1.addConstraint(Sketcher.Constraint("Tangent", 74, 2, 75, 1))
sketch1.addConstraint(Sketcher.Constraint("Tangent", 75, 2, 76, 1))
sketch1.addConstraint(Sketcher.Constraint("Tangent", 76, 2, 77, 1))
sketch1.addConstraint(Sketcher.Constraint("Tangent", 77, 2, 78, 1))
sketch1.addConstraint(Sketcher.Constraint("Tangent", 78, 2, 79, 1))
sketch1.addConstraint(Sketcher.Constraint("Tangent", 79, 2, 80, 1))
sketch1.addConstraint(Sketcher.Constraint("Tangent", 80, 2, 81, 2))
sketch1.addConstraint(Sketcher.Constraint("Tangent", 81, 1, 82, 1))
sketch1.addConstraint(Sketcher.Constraint("Tangent", 82, 2, 83, 2))
sketch1.addConstraint(Sketcher.Constraint("Tangent", 83, 1, 84, 1))
sketch1.addConstraint(Sketcher.Constraint("Tangent", 84, 2, 85, 2))
sketch1.addConstraint(Sketcher.Constraint("Tangent", 85, 1, 86, 1))
sketch1.addConstraint(Sketcher.Constraint("Tangent", 86, 2, 87, 2))
sketch1.addConstraint(Sketcher.Constraint("Tangent", 87, 1, 0, 1))
sketch1.addConstraint(Sketcher.Constraint("Vertical", 0))
sketch1.addConstraint(Sketcher.Constraint("Horizontal", 2))
sketch1.addConstraint(Sketcher.Constraint("Vertical", 4))
sketch1.addConstraint(Sketcher.Constraint("Horizontal", 8))
sketch1.addConstraint(Sketcher.Constraint("Vertical", 12))
sketch1.addConstraint(Sketcher.Constraint("Horizontal", 14))
sketch1.addConstraint(Sketcher.Constraint("Vertical", 16))
sketch1.addConstraint(Sketcher.Constraint("Horizontal", 18))
sketch1.addConstraint(Sketcher.Constraint("Vertical", 20))
sketch1.addConstraint(Sketcher.Constraint("Horizontal", 22))
sketch1.addConstraint(Sketcher.Constraint("Vertical", 24))
sketch1.addConstraint(Sketcher.Constraint("Horizontal", 26))
sketch1.addConstraint(Sketcher.Constraint("Vertical", 30))
sketch1.addConstraint(Sketcher.Constraint("Horizontal", 34))
sketch1.addConstraint(Sketcher.Constraint("Vertical", 36))
sketch1.addConstraint(Sketcher.Constraint("Horizontal", 38))
sketch1.addConstraint(Sketcher.Constraint("Vertical", 40))
sketch1.addConstraint(Sketcher.Constraint("Horizontal", 42))
sketch1.addConstraint(Sketcher.Constraint("Vertical", 44))
sketch1.addConstraint(Sketcher.Constraint("Horizontal", 46))
sketch1.addConstraint(Sketcher.Constraint("Vertical", 48))
sketch1.addConstraint(Sketcher.Constraint("Horizontal", 52))
sketch1.addConstraint(Sketcher.Constraint("Vertical", 56))
sketch1.addConstraint(Sketcher.Constraint("Horizontal", 58))
sketch1.addConstraint(Sketcher.Constraint("Vertical", 60))
sketch1.addConstraint(Sketcher.Constraint("Horizontal", 62))
sketch1.addConstraint(Sketcher.Constraint("Vertical", 64))
sketch1.addConstraint(Sketcher.Constraint("Horizontal", 66))
sketch1.addConstraint(Sketcher.Constraint("Vertical", 68))
sketch1.addConstraint(Sketcher.Constraint("Horizontal", 70))
sketch1.addConstraint(Sketcher.Constraint("Vertical", 74))
sketch1.addConstraint(Sketcher.Constraint("Horizontal", 78))
sketch1.addConstraint(Sketcher.Constraint("Vertical", 80))
sketch1.addConstraint(Sketcher.Constraint("Horizontal", 82))
sketch1.addConstraint(Sketcher.Constraint("Vertical", 84))
sketch1.addConstraint(Sketcher.Constraint("Horizontal", 86))
sketch1.addConstraint(Sketcher.Constraint("Coincident", 88, 3, -1, 1))
sketch1.addConstraint(Sketcher.Constraint("Equal", 1, 3))
sketch1.addConstraint(Sketcher.Constraint("Equal", 3, 5))
sketch1.addConstraint(Sketcher.Constraint("Equal", 5, 7))
sketch1.addConstraint(Sketcher.Constraint("Equal", 7, 9))
sketch1.addConstraint(Sketcher.Constraint("Equal", 9, 11))
sketch1.addConstraint(Sketcher.Constraint("Equal", 11, 13))
sketch1.addConstraint(Sketcher.Constraint("Equal", 13, 15))
sketch1.addConstraint(Sketcher.Constraint("Equal", 15, 17))
sketch1.addConstraint(Sketcher.Constraint("Equal", 17, 21))
sketch1.addConstraint(Sketcher.Constraint("Equal", 21, 23))
sketch1.addConstraint(Sketcher.Constraint("Equal", 23, 25))
sketch1.addConstraint(Sketcher.Constraint("Equal", 25, 27))
sketch1.addConstraint(Sketcher.Constraint("Equal", 27, 29))
sketch1.addConstraint(Sketcher.Constraint("Equal", 29, 31))
sketch1.addConstraint(Sketcher.Constraint("Equal", 31, 33))
sketch1.addConstraint(Sketcher.Constraint("Equal", 33, 35))
sketch1.addConstraint(Sketcher.Constraint("Equal", 35, 37))
sketch1.addConstraint(Sketcher.Constraint("Equal", 37, 39))
sketch1.addConstraint(Sketcher.Constraint("Equal", 19, 41))
sketch1.addConstraint(Sketcher.Constraint("Equal", 39, 43))
sketch1.addConstraint(Sketcher.Constraint("Equal", 43, 45))
sketch1.addConstraint(Sketcher.Constraint("Equal", 45, 47))
sketch1.addConstraint(Sketcher.Constraint("Equal", 47, 49))
sketch1.addConstraint(Sketcher.Constraint("Equal", 49, 51))
sketch1.addConstraint(Sketcher.Constraint("Equal", 51, 53))
sketch1.addConstraint(Sketcher.Constraint("Equal", 53, 55))
sketch1.addConstraint(Sketcher.Constraint("Equal", 55, 57))
sketch1.addConstraint(Sketcher.Constraint("Equal", 57, 59))
sketch1.addConstraint(Sketcher.Constraint("Equal", 59, 61))
sketch1.addConstraint(Sketcher.Constraint("Equal", 41, 63))
sketch1.addConstraint(Sketcher.Constraint("Equal", 61, 65))
sketch1.addConstraint(Sketcher.Constraint("Equal", 65, 67))
sketch1.addConstraint(Sketcher.Constraint("Equal", 67, 69))
sketch1.addConstraint(Sketcher.Constraint("Equal", 69, 71))
sketch1.addConstraint(Sketcher.Constraint("Equal", 71, 73))
sketch1.addConstraint(Sketcher.Constraint("Equal", 73, 75))
sketch1.addConstraint(Sketcher.Constraint("Equal", 75, 77))
sketch1.addConstraint(Sketcher.Constraint("Equal", 77, 79))
sketch1.addConstraint(Sketcher.Constraint("Equal", 79, 81))
sketch1.addConstraint(Sketcher.Constraint("Equal", 81, 83))
sketch1.addConstraint(Sketcher.Constraint("Equal", 63, 85))
sketch1.addConstraint(Sketcher.Constraint("Equal", 83, 87))
sketch1.addConstraint(Sketcher.Constraint("Symmetric", 1, 3, 45, 3, -1, 1))
sketch1.addConstraint(Sketcher.Constraint("Symmetric", 5, 3, 49, 3, -1, 1))
sketch1.addConstraint(Sketcher.Constraint("Symmetric", 7, 3, 51, 3, -1, 1))
sketch1.addConstraint(Sketcher.Constraint("Symmetric", 11, 3, 55, 3, -1, 1))
sketch1.addConstraint(Sketcher.Constraint("Symmetric", 15, 3, 59, 3, -1, 1))
sketch1.addConstraint(Sketcher.Constraint("Symmetric", 19, 3, 63, 3, -1, 1))
sketch1.addConstraint(Sketcher.Constraint("Symmetric", 23, 3, 67, 3, -1, 1))
sketch1.addConstraint(Sketcher.Constraint("Symmetric", 27, 3, 71, 3, -1, 1))
sketch1.addConstraint(Sketcher.Constraint("Symmetric", 29, 3, 73, 3, -1, 1))
sketch1.addConstraint(Sketcher.Constraint("Symmetric", 33, 3, 77, 3, -1, 1))
sketch1.addConstraint(Sketcher.Constraint("Symmetric", 37, 3, 81, 3, -1, 1))
sketch1.addConstraint(Sketcher.Constraint("Symmetric", 41, 3, 85, 3, -1, 1))
sketch1.addConstraint(Sketcher.Constraint("Symmetric", 5, 3, 11, 3, -2))
sketch1.addConstraint(Sketcher.Constraint("Symmetric", 1, 3, 15, 3, -2))
sketch1.addConstraint(Sketcher.Constraint("Symmetric", 41, 3, 63, 3, -2))
sketch1.addConstraint(Sketcher.Constraint("Symmetric", 37, 3, 67, 3, -2))
sketch1.addConstraint(Sketcher.Constraint("Symmetric", 33, 3, 71, 3, -2))
sketch1.addConstraint(Sketcher.Constraint("Perpendicular", 6, 10))
sketch1.addConstraint(Sketcher.Constraint("Parallel", 10, 28))
sketch1.addConstraint(Sketcher.Constraint("Perpendicular", 28, 32))
sketch1.addConstraint(Sketcher.Constraint("Perpendicular", 50, 54))
sketch1.addConstraint(Sketcher.Constraint("Perpendicular", 72, 76))
sketch1.addConstraint(Sketcher.Constraint("Horizontal", 31, 3, 73, 3))
sketch1.addConstraint(Sketcher.Constraint("Equal", 82, 0))
sketch1.addConstraint(Sketcher.Constraint("Equal", 78, 4))
sketch1.addConstraint(Sketcher.Constraint("Equal", 86, 20))
sketch1.addConstraint(Sketcher.Constraint("Equal", 58, 24))
sketch1.addConstraint(Sketcher.Constraint("Equal", 52, 30))
sketch1.addConstraint(Sketcher.Constraint("Equal", 10, 28))
sketch1.addConstraint(Sketcher.Constraint("Diameter", 88, 5.0))
sketch1.addConstraint(Sketcher.Constraint("Radius", 19, 2.0))
sketch1.addConstraint(Sketcher.Constraint("Radius", 1, 0.6))
sketch1.addConstraint(Sketcher.Constraint("DistanceX", 2, 1, 2, 2, 1.2))
sketch1.addConstraint(Sketcher.Constraint("DistanceX", 18, 2, 18, 1, 4.3))
sketch1.addConstraint(Sketcher.Constraint("DistanceX", 22, 1, 22, 2, 0.6))
sketch1.addConstraint(Sketcher.Constraint("DistanceX", 19, 3, -1, 1, 8.0))
sketch1.addConstraint(Sketcher.Constraint("DistanceY", 7, 3, -1, 1, 4.5))
sketch1.addConstraint(Sketcher.Constraint("DistanceX", 26, 1, 26, 2, 0.790812))
sketch1.setExpression("Constraints[196]", "Params.sketch1_diameter")
sketch1.setExpression("Constraints[197]", "Params.sketch1_radius")
sketch1.setExpression("Constraints[198]", "Params.sketch1_radius2")
sketch1.setExpression("Constraints[199]", "Params.sketch1_width")
sketch1.setExpression("Constraints[200]", "Params.sketch1_width2")
pad1 = body.newObject("PartDesign::Pad", "Pad")
pad1.Profile = sketch1
pad1.setExpression("Length", "Params.pad1_length")
pad1.Reversed = True

doc.recompute()
